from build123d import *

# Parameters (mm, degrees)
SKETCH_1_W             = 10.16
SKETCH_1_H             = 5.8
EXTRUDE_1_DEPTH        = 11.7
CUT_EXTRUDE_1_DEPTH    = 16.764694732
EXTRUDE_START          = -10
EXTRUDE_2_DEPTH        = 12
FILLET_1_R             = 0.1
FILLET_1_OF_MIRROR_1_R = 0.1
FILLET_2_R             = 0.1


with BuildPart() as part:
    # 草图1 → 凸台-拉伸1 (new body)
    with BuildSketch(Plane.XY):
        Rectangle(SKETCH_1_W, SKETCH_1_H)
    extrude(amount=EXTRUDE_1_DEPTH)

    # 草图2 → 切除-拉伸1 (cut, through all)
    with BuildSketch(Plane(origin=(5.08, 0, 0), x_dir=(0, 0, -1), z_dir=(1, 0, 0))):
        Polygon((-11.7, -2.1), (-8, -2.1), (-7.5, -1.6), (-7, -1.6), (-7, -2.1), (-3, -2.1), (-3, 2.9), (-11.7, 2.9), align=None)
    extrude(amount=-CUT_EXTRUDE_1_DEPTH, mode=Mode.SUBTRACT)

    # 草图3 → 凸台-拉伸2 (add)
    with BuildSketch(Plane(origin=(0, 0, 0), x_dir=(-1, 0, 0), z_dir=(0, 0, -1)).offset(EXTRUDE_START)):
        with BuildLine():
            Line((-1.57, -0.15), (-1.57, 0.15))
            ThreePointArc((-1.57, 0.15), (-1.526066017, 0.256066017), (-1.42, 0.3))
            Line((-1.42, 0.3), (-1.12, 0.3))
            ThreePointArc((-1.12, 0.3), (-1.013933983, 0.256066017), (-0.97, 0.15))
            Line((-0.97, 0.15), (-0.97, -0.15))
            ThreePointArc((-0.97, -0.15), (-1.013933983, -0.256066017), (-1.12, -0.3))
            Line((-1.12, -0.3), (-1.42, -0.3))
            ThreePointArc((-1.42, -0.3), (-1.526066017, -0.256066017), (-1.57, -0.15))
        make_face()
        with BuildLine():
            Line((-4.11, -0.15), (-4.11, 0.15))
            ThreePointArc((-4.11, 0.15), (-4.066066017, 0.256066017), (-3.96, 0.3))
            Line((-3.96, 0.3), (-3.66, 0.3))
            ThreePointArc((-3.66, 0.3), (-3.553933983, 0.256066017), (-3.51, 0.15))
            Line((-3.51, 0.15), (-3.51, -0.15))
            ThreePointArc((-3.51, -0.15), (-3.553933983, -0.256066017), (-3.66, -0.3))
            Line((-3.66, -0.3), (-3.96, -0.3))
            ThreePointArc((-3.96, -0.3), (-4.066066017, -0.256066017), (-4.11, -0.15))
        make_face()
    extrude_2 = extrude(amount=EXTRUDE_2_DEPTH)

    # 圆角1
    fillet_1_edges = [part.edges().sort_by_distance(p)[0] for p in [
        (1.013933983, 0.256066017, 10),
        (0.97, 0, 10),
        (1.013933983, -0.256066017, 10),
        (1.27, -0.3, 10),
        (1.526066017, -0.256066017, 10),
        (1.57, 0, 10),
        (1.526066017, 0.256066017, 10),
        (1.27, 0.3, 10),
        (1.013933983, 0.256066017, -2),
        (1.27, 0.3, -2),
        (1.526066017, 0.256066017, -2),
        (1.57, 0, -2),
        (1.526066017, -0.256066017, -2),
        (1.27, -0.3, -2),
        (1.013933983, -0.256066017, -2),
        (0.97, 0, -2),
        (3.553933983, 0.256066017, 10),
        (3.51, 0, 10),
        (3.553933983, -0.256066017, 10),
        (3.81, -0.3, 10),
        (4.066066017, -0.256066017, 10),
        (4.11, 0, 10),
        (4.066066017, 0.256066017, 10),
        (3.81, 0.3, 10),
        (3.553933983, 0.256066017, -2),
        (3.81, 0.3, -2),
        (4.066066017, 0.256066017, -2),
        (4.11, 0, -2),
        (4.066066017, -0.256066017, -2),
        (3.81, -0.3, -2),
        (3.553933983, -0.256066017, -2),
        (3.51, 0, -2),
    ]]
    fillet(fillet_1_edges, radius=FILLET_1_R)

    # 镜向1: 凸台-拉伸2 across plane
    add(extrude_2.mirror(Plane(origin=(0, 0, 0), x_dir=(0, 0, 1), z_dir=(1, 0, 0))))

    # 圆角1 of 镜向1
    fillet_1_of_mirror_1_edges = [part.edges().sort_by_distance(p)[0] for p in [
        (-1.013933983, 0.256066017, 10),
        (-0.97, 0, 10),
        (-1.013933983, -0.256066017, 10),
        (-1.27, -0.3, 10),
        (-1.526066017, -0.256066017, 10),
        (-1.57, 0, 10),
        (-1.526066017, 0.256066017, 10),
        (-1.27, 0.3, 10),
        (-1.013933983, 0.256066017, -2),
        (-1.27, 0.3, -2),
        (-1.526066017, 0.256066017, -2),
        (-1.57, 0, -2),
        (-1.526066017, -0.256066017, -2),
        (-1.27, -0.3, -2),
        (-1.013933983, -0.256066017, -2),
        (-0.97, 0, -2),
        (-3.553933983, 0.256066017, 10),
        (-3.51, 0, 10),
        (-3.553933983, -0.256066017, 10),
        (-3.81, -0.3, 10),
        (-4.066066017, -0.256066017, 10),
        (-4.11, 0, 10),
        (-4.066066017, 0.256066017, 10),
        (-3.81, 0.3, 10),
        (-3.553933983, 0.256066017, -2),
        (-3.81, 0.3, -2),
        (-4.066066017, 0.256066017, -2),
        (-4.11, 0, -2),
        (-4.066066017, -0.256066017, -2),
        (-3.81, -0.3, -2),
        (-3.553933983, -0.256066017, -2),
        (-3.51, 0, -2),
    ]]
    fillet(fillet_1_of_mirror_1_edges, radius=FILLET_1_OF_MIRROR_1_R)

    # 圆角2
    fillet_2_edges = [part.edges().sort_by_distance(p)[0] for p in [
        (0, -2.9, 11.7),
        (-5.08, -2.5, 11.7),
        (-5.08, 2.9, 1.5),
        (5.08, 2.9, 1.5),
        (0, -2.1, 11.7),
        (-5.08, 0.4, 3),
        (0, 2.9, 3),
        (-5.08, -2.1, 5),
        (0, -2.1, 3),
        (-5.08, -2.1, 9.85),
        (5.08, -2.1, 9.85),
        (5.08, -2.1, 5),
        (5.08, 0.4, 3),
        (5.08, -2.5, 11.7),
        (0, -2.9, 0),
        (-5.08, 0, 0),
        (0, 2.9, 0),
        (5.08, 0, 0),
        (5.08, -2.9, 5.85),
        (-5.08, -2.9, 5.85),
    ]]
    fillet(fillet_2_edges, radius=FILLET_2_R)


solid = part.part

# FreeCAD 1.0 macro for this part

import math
import FreeCAD as App
import Part
import Sketcher
from FreeCAD import Vector
Q = App.Units.Quantity


def edges_at(feature, points):
    """Names of the edges that pass closest to the given points."""
    edges = feature.Shape.Edges
    near = lambda p: min(range(len(edges)), key=lambda i: edges[i].distToShape(Part.Vertex(*p))[0])
    return sorted({f"Edge{near(p) + 1}" for p in points})


def add_polygon(sketch, points):
    """Adds a closed chain of lines whose ends are joined by coincident constraints."""
    first, n = sketch.GeometryCount, len(points)
    for a, b in zip(points, points[1:] + points[:1]):
        sketch.addGeometry(Part.LineSegment(App.Vector(*a, 0), App.Vector(*b, 0)), False)
    for i in range(n):
        sketch.addConstraint(Sketcher.Constraint("Coincident", first + i, 2, first + (i + 1) % n, 1))

doc = App.newDocument("Part")
body = doc.addObject("PartDesign::Body", "Body")

# Sketch on XY plane
sketch1 = doc.addObject("Sketcher::SketchObject", "Sketch")
body.addObject(sketch1)
sketch1.AttachmentSupport = (doc.XY_Plane, [""])
sketch1.MapMode = "FlatFace"
add_polygon(sketch1, [(-5, 3), (-5, -3), (5, -3), (5, 3)])  # lines 0-3
sketch1.addConstraint([
    Sketcher.Constraint("Vertical", 0),
    Sketcher.Constraint("Horizontal", 1),
    Sketcher.Constraint("Vertical", 2),
    Sketcher.Constraint("Horizontal", 3),
    Sketcher.Constraint("Symmetric", 0, 2, 2, 2, -1, 1),
    Sketcher.Constraint("DistanceY", 0, 2, 0, 1, Q("5.8 mm")),
    Sketcher.Constraint("DistanceX", 1, 1, 1, 2, Q("10.16 mm")),
])
pad1 = doc.addObject("PartDesign::Pad", "Pad")
body.addObject(pad1)
pad1.Profile = sketch1
pad1.Length = 11.7

# Sketch on YZ plane
sketch2 = doc.addObject("Sketcher::SketchObject", "Sketch001")
body.addObject(sketch2)
sketch2.AttachmentSupport = (doc.YZ_Plane, [""])
sketch2.MapMode = "FlatFace"
sketch2.AttachmentOffset = App.Placement(Vector(0, 0, 5.08), App.Rotation())
add_polygon(sketch2, [(-2.1, 11.7), (-2.1, 8), (-1.6, 7.5), (-1.6, 7), (-2.1, 7), (-2.1, 3), (2.9, 3), (2.9, 11.7)])  # lines 0-7
sketch2.addConstraint([
    Sketcher.Constraint("Vertical", 0),
    Sketcher.Constraint("Vertical", 2),
    Sketcher.Constraint("Horizontal", 3),
    Sketcher.Constraint("Vertical", 4),
    Sketcher.Constraint("Horizontal", 5),
    Sketcher.Constraint("Vertical", 6),
    Sketcher.Constraint("Horizontal", 7),
    Sketcher.Constraint("Vertical", 0, 2, 3, 2),
    Sketcher.Constraint("Equal", 3, 2),
    Sketcher.Constraint("DistanceX", 5, 1, 5, 2, Q("5 mm")),
    Sketcher.Constraint("DistanceY", 4, 2, 4, 1, Q("4 mm")),
    Sketcher.Constraint("Angle", 1, Q("-45 deg")),
    Sketcher.Constraint("DistanceX", 3, 2, 3, 1, Q("0.5 mm")),
    Sketcher.Constraint("DistanceY", 0, 2, 0, 1, Q("3.7 mm")),
    Sketcher.Constraint("DistanceY", -1, 1, 0, 2, Q("8 mm")),
    Sketcher.Constraint("DistanceX", 0, 2, -1, 1, Q("2.1 mm")),
])
pocket1 = doc.addObject("PartDesign::Pocket", "Pocket")
body.addObject(pocket1)
pocket1.Profile = sketch2
pocket1.Type = "ThroughAll"

# Sketch on XY plane
sketch3 = doc.addObject("Sketcher::SketchObject", "Sketch002")
body.addObject(sketch3)
sketch3.AttachmentSupport = (doc.XY_Plane, [""])
sketch3.MapMode = "FlatFace"
sketch3.AttachmentOffset = App.Placement(Vector(0, 0, 10), App.Rotation())
sketch3.addGeometry([
    Part.LineSegment(Vector(1.57, 0.15, 0), Vector(1.57, -0.15, 0)),  # 0
    Part.ArcOfCircle(Part.Circle(Vector(1.42, -0.15, 0), Vector(0, 0, 1), 0.15), math.radians(-90), math.radians(0)),  # 1
    Part.LineSegment(Vector(1.42, -0.3, 0), Vector(1.12, -0.3, 0)),  # 2
    Part.ArcOfCircle(Part.Circle(Vector(1.12, -0.15, 0), Vector(0, 0, 1), 0.15), math.radians(-180), math.radians(-90)),  # 3
    Part.LineSegment(Vector(0.97, -0.15, 0), Vector(0.97, 0.15, 0)),  # 4
    Part.ArcOfCircle(Part.Circle(Vector(1.12, 0.15, 0), Vector(0, 0, 1), 0.15), math.radians(90), math.radians(180)),  # 5
    Part.LineSegment(Vector(1.12, 0.3, 0), Vector(1.42, 0.3, 0)),  # 6
    Part.ArcOfCircle(Part.Circle(Vector(1.42, 0.15, 0), Vector(0, 0, 1), 0.15), math.radians(0), math.radians(90)),  # 7
    Part.LineSegment(Vector(4.11, 0.15, 0), Vector(4.11, -0.15, 0)),  # 8
    Part.ArcOfCircle(Part.Circle(Vector(3.96, -0.15, 0), Vector(0, 0, 1), 0.15), math.radians(-90), math.radians(0)),  # 9
    Part.LineSegment(Vector(3.96, -0.3, 0), Vector(3.66, -0.3, 0)),  # 10
    Part.ArcOfCircle(Part.Circle(Vector(3.66, -0.15, 0), Vector(0, 0, 1), 0.15), math.radians(-180), math.radians(-90)),  # 11
    Part.LineSegment(Vector(3.51, -0.15, 0), Vector(3.51, 0.15, 0)),  # 12
    Part.ArcOfCircle(Part.Circle(Vector(3.66, 0.15, 0), Vector(0, 0, 1), 0.15), math.radians(90), math.radians(180)),  # 13
    Part.LineSegment(Vector(3.66, 0.3, 0), Vector(3.96, 0.3, 0)),  # 14
    Part.ArcOfCircle(Part.Circle(Vector(3.96, 0.15, 0), Vector(0, 0, 1), 0.15), math.radians(0), math.radians(90)),  # 15
], False)
sketch3.addConstraint([
    Sketcher.Constraint("Tangent", 0, 2, 1, 2),
    Sketcher.Constraint("Tangent", 1, 1, 2, 1),
    Sketcher.Constraint("Tangent", 2, 2, 3, 2),
    Sketcher.Constraint("Tangent", 3, 1, 4, 1),
    Sketcher.Constraint("Tangent", 4, 2, 5, 2),
    Sketcher.Constraint("Tangent", 5, 1, 6, 1),
    Sketcher.Constraint("Tangent", 6, 2, 7, 2),
    Sketcher.Constraint("Tangent", 7, 1, 0, 1),
    Sketcher.Constraint("Tangent", 8, 2, 9, 2),
    Sketcher.Constraint("Tangent", 9, 1, 10, 1),
    Sketcher.Constraint("Tangent", 10, 2, 11, 2),
    Sketcher.Constraint("Tangent", 11, 1, 12, 1),
    Sketcher.Constraint("Tangent", 12, 2, 13, 2),
    Sketcher.Constraint("Tangent", 13, 1, 14, 1),
    Sketcher.Constraint("Tangent", 14, 2, 15, 2),
    Sketcher.Constraint("Tangent", 15, 1, 8, 1),
    Sketcher.Constraint("Vertical", 0),
    Sketcher.Constraint("Horizontal", 2),
    Sketcher.Constraint("Vertical", 4),
    Sketcher.Constraint("Horizontal", 6),
    Sketcher.Constraint("Vertical", 8),
    Sketcher.Constraint("Horizontal", 10),
    Sketcher.Constraint("Vertical", 12),
    Sketcher.Constraint("Horizontal", 14),
    Sketcher.Constraint("Equal", 1, 3),
    Sketcher.Constraint("Equal", 3, 5),
    Sketcher.Constraint("Equal", 5, 7),
    Sketcher.Constraint("Equal", 7, 9),
    Sketcher.Constraint("Equal", 9, 11),
    Sketcher.Constraint("Equal", 11, 13),
    Sketcher.Constraint("Equal", 13, 15),
    Sketcher.Constraint("Horizontal", 3, 3, 9, 3),
    Sketcher.Constraint("Horizontal", 7, 3, 13, 3),
    Sketcher.Constraint("Equal", 6, 10),
    Sketcher.Constraint("Equal", 14, 0),
    Sketcher.Constraint("Radius", 1, Q("0.15 mm")),
    Sketcher.Constraint("DistanceX", 2, 2, 2, 1, Q("0.3 mm")),
    Sketcher.Constraint("DistanceY", 1, 1, -1, 1, Q("0.3 mm")),
    Sketcher.Constraint("DistanceX", -1, 1, 1, 3, Q("1.42 mm")),
    Sketcher.Constraint("DistanceX", -1, 1, 9, 3, Q("3.96 mm")),
])
pad2 = doc.addObject("PartDesign::Pad", "Pad001")
body.addObject(pad2)
pad2.Profile = sketch3
pad2.Length = 12
pad2.Reversed = True
doc.recompute()

fillet = doc.addObject("PartDesign::Fillet", "Fillet")
body.addObject(fillet)
fillet.Base = (pad2, edges_at(pad2, [
    (1.014, 0.256, 10),
    (0.97, 0, 10),
    (1.014, -0.256, 10),
    (1.27, -0.3, 10),
    (1.526, -0.256, 10),
    (1.57, 0, 10),
    (1.526, 0.256, 10),
    (1.27, 0.3, 10),
    (1.014, 0.256, -2),
    (1.27, 0.3, -2),
    (1.526, 0.256, -2),
    (1.57, 0, -2),
    (1.526, -0.256, -2),
    (1.27, -0.3, -2),
    (1.014, -0.256, -2),
    (0.97, 0, -2),
    (3.554, 0.256, 10),
    (3.51, 0, 10),
    (3.554, -0.256, 10),
    (3.81, -0.3, 10),
    (4.066, -0.256, 10),
    (4.11, 0, 10),
    (4.066, 0.256, 10),
    (3.81, 0.3, 10),
    (3.554, 0.256, -2),
    (3.81, 0.3, -2),
    (4.066, 0.256, -2),
    (4.11, 0, -2),
    (4.066, -0.256, -2),
    (3.81, -0.3, -2),
    (3.554, -0.256, -2),
    (3.51, 0, -2),
]))
fillet.Radius = 0.1
doc.recompute()

mirrored = doc.addObject("PartDesign::Mirrored", "Mirrored")
body.addObject(mirrored)
mirrored.Originals = [pad2]
mirrored.MirrorPlane = (doc.YZ_Plane, [""])
body.Tip = mirrored
doc.recompute()

fillet2 = doc.addObject("PartDesign::Fillet", "Fillet001")
body.addObject(fillet2)
fillet2.Base = (mirrored, edges_at(mirrored, [
    (-1.014, 0.256, 10),
    (-0.97, 0, 10),
    (-1.014, -0.256, 10),
    (-1.27, -0.3, 10),
    (-1.526, -0.256, 10),
    (-1.57, 0, 10),
    (-1.526, 0.256, 10),
    (-1.27, 0.3, 10),
    (-1.014, 0.256, -2),
    (-1.27, 0.3, -2),
    (-1.526, 0.256, -2),
    (-1.57, 0, -2),
    (-1.526, -0.256, -2),
    (-1.27, -0.3, -2),
    (-1.014, -0.256, -2),
    (-0.97, 0, -2),
    (-3.554, 0.256, 10),
    (-3.51, 0, 10),
    (-3.554, -0.256, 10),
    (-3.81, -0.3, 10),
    (-4.066, -0.256, 10),
    (-4.11, 0, 10),
    (-4.066, 0.256, 10),
    (-3.81, 0.3, 10),
    (-3.554, 0.256, -2),
    (-3.81, 0.3, -2),
    (-4.066, 0.256, -2),
    (-4.11, 0, -2),
    (-4.066, -0.256, -2),
    (-3.81, -0.3, -2),
    (-3.554, -0.256, -2),
    (-3.51, 0, -2),
]))
fillet2.Radius = 0.1
doc.recompute()

fillet3 = doc.addObject("PartDesign::Fillet", "Fillet002")
body.addObject(fillet3)
fillet3.Base = (fillet2, edges_at(fillet2, [
    (0, -2.9, 11.7),
    (-5.08, -2.5, 11.7),
    (-5.08, 2.9, 1.5),
    (5.08, 2.9, 1.5),
    (0, -2.1, 11.7),
    (-5.08, 0.4, 3),
    (0, 2.9, 3),
    (-5.08, -2.1, 5),
    (0, -2.1, 3),
    (-5.08, -2.1, 9.85),
    (5.08, -2.1, 9.85),
    (5.08, -2.1, 5),
    (5.08, 0.4, 3),
    (5.08, -2.5, 11.7),
    (0, -2.9, 0),
    (-5.08, 0, 0),
    (0, 2.9, 0),
    (5.08, 0, 0),
    (5.08, -2.9, 5.85),
    (-5.08, -2.9, 5.85),
]))
fillet3.Radius = 0.1

doc.recompute()
